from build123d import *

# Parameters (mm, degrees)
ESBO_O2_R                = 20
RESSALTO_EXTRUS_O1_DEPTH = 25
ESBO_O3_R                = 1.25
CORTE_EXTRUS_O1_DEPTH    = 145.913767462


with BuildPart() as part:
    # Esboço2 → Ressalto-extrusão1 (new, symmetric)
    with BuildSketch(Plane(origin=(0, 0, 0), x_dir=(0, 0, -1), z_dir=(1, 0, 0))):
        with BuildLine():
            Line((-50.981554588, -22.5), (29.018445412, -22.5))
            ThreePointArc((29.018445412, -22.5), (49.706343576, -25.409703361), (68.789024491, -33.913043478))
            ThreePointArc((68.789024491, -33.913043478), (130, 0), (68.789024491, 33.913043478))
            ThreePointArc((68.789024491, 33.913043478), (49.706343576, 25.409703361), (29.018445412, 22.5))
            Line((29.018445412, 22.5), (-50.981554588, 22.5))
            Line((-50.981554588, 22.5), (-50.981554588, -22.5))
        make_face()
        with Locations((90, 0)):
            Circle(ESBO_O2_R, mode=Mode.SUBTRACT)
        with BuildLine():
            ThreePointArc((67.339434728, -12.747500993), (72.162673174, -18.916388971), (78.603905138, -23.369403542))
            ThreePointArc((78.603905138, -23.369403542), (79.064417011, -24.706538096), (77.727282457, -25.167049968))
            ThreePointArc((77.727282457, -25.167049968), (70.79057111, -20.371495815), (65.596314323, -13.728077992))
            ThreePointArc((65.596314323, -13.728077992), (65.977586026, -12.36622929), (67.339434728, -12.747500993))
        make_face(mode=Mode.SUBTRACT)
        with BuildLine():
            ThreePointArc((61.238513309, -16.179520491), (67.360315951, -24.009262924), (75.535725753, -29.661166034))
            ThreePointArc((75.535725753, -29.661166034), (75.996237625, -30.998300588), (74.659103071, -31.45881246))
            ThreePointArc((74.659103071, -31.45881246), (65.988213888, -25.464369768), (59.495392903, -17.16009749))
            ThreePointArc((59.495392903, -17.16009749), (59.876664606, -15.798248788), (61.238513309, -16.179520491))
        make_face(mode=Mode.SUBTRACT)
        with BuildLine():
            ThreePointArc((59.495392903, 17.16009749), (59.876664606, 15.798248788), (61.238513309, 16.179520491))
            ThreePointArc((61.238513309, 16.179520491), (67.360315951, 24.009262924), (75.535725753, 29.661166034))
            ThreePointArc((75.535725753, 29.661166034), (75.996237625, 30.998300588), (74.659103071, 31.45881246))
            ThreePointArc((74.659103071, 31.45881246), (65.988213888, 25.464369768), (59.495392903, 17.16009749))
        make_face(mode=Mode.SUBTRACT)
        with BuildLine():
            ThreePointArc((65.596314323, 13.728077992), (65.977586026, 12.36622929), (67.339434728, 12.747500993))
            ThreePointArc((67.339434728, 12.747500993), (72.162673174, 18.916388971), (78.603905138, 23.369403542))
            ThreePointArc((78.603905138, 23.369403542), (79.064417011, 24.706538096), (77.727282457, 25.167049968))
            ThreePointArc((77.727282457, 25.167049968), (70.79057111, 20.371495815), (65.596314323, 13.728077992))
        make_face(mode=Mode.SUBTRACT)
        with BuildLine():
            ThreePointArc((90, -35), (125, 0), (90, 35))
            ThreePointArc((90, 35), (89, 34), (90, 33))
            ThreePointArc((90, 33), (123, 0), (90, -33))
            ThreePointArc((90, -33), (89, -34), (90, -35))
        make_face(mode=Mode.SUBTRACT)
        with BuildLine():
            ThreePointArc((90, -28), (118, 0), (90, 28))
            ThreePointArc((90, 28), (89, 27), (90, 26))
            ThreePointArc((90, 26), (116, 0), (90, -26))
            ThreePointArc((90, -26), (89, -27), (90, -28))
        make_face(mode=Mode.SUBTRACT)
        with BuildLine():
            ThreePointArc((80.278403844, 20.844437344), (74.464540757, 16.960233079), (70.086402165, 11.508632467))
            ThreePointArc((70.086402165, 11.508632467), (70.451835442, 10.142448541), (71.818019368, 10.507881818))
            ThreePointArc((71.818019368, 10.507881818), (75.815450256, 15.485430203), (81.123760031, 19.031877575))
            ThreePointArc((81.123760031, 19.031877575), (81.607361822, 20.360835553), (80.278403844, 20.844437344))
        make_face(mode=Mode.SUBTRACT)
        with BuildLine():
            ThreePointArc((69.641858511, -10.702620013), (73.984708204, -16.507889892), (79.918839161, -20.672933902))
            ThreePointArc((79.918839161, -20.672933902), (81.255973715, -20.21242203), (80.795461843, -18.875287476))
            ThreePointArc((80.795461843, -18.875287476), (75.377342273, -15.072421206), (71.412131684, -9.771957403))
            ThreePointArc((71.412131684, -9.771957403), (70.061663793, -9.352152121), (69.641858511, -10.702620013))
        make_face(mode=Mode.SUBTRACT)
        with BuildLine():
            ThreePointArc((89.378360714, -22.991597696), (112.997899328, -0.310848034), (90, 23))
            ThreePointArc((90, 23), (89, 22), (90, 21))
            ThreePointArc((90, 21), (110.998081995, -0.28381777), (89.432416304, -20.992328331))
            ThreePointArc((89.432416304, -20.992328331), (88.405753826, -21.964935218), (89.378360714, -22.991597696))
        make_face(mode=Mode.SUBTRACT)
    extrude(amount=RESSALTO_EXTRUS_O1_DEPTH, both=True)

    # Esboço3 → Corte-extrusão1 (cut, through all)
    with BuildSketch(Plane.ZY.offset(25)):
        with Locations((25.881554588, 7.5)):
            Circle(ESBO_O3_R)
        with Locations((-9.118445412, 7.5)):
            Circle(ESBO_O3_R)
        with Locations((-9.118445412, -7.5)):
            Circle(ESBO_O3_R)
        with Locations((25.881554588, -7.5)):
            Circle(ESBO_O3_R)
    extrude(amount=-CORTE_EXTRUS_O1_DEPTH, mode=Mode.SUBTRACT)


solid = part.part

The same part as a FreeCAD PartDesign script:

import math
import FreeCAD as App
import Part
import Sketcher

doc = App.newDocument("Part")
body = doc.addObject("PartDesign::Body", "Body")

# Sketch on YZ plane
sketch1 = body.newObject("Sketcher::SketchObject", "Sketch")
sketch1.AttachmentSupport = (doc.getObject("YZ_Plane"), [""])
sketch1.MapMode = "FlatFace"
sketch1.addGeometry([
    Part.LineSegment(App.Vector(-22.5, 51, 0), App.Vector(-22.5, -29, 0)),  # 0
    Part.ArcOfCircle(Part.Circle(App.Vector(-97.5, -29, 0), App.Vector(0, 0, 1), 75), math.radians(-32), math.radians(0)),  # 1
    Part.ArcOfCircle(Part.Circle(App.Vector(0, -90, 0), App.Vector(0, 0, 1), 40), math.radians(148), math.radians(392)),  # 2
    Part.ArcOfCircle(Part.Circle(App.Vector(97.5, -29, 0), App.Vector(0, 0, 1), 75), math.radians(-180), math.radians(-148)),  # 3
    Part.LineSegment(App.Vector(22.5, -29, 0), App.Vector(22.5, 51, 0)),  # 4
    Part.LineSegment(App.Vector(22.5, 51, 0), App.Vector(-22.5, 51, 0)),  # 5
    Part.ArcOfCircle(Part.Circle(App.Vector(-16.7, -60.4, 0), App.Vector(0, 0, 1), 1), math.radians(-61), math.radians(119)),  # 6
    Part.ArcOfCircle(Part.Circle(App.Vector(0, -90, 0), App.Vector(0, 0, 1), 33), math.radians(119), math.radians(154)),  # 7
    Part.ArcOfCircle(Part.Circle(App.Vector(-30.6, -75.1, 0), App.Vector(0, 0, 1), 1), math.radians(154), math.radians(334)),  # 8
    Part.ArcOfCircle(Part.Circle(App.Vector(0, -90, 0), App.Vector(0, 0, 1), 35), math.radians(119), math.radians(154)),  # 9
    Part.ArcOfCircle(Part.Circle(App.Vector(-13.2, -66.5, 0), App.Vector(0, 0, 1), 1), math.radians(-61), math.radians(119)),  # 10
    Part.ArcOfCircle(Part.Circle(App.Vector(0, -90, 0), App.Vector(0, 0, 1), 26), math.radians(119), math.radians(154)),  # 11
    Part.ArcOfCircle(Part.Circle(App.Vector(-24.3, -78.2, 0), App.Vector(0, 0, 1), 1), math.radians(154), math.radians(334)),  # 12
    Part.ArcOfCircle(Part.Circle(App.Vector(0, -90, 0), App.Vector(0, 0, 1), 28), math.radians(119), math.radians(154)),  # 13
    Part.ArcOfCircle(Part.Circle(App.Vector(0, -90, 0), App.Vector(0, 0, 1), 23), math.radians(118), math.radians(154)),  # 14
    Part.ArcOfCircle(Part.Circle(App.Vector(-10.2, -70.5, 0), App.Vector(0, 0, 1), 1), math.radians(-62), math.radians(118)),  # 15
    Part.ArcOfCircle(Part.Circle(App.Vector(0, -90, 0), App.Vector(0, 0, 1), 21), math.radians(118), math.radians(154)),  # 16
    Part.ArcOfCircle(Part.Circle(App.Vector(-19.8, -80.4, 0), App.Vector(0, 0, 1), 1), math.radians(154), math.radians(334)),  # 17
    Part.ArcOfCircle(Part.Circle(App.Vector(0, -90, 0), App.Vector(0, 0, 1), 23), math.radians(178), math.radians(360)),  # 18
    Part.ArcOfCircle(Part.Circle(App.Vector(-22, -89.4, 0), App.Vector(0, 0, 1), 1), math.radians(-2), math.radians(178)),  # 19
    Part.ArcOfCircle(Part.Circle(App.Vector(0, -90, 0), App.Vector(0, 0, 1), 21), math.radians(178), math.radians(360)),  # 20
    Part.ArcOfCircle(Part.Circle(App.Vector(22, -90, 0), App.Vector(0, 0, 1), 1), math.radians(0), math.radians(180)),  # 21
    Part.Circle(App.Vector(0, -90, 0), App.Vector(0, 0, 1), 20),  # 22
    Part.ArcOfCircle(Part.Circle(App.Vector(0, -90, 0), App.Vector(0, 0, 1), 23), math.radians(25), math.radians(60)),  # 23
    Part.ArcOfCircle(Part.Circle(App.Vector(19.9, -80.7, 0), App.Vector(0, 0, 1), 1), math.radians(-155), math.radians(25)),  # 24
    Part.ArcOfCircle(Part.Circle(App.Vector(0, -90, 0), App.Vector(0, 0, 1), 21), math.radians(25), math.radians(60)),  # 25
    Part.ArcOfCircle(Part.Circle(App.Vector(11, -71, 0), App.Vector(0, 0, 1), 1), math.radians(60), math.radians(240)),  # 26
    Part.ArcOfCircle(Part.Circle(App.Vector(13.2, -66.5, 0), App.Vector(0, 0, 1), 1), math.radians(61), math.radians(241)),  # 27
    Part.ArcOfCircle(Part.Circle(App.Vector(0, -90, 0), App.Vector(0, 0, 1), 28), math.radians(26), math.radians(61)),  # 28
    Part.ArcOfCircle(Part.Circle(App.Vector(24.3, -78.2, 0), App.Vector(0, 0, 1), 1), math.radians(-154), math.radians(26)),  # 29
    Part.ArcOfCircle(Part.Circle(App.Vector(0, -90, 0), App.Vector(0, 0, 1), 26), math.radians(26), math.radians(61)),  # 30
    Part.ArcOfCircle(Part.Circle(App.Vector(16.7, -60.4, 0), App.Vector(0, 0, 1), 1), math.radians(61), math.radians(241)),  # 31
    Part.ArcOfCircle(Part.Circle(App.Vector(0, -90, 0), App.Vector(0, 0, 1), 35), math.radians(26), math.radians(61)),  # 32
    Part.ArcOfCircle(Part.Circle(App.Vector(30.6, -75.1, 0), App.Vector(0, 0, 1), 1), math.radians(-154), math.radians(26)),  # 33
    Part.ArcOfCircle(Part.Circle(App.Vector(0, -90, 0), App.Vector(0, 0, 1), 33), math.radians(26), math.radians(61)),  # 34
    Part.ArcOfCircle(Part.Circle(App.Vector(0, -90, 0), App.Vector(0, 0, 1), 28), math.radians(180), math.radians(360)),  # 35
    Part.ArcOfCircle(Part.Circle(App.Vector(-27, -90, 0), App.Vector(0, 0, 1), 1), math.radians(0), math.radians(180)),  # 36
    Part.ArcOfCircle(Part.Circle(App.Vector(0, -90, 0), App.Vector(0, 0, 1), 26), math.radians(180), math.radians(360)),  # 37
    Part.ArcOfCircle(Part.Circle(App.Vector(27, -90, 0), App.Vector(0, 0, 1), 1), math.radians(0), math.radians(180)),  # 38
    Part.ArcOfCircle(Part.Circle(App.Vector(0, -90, 0), App.Vector(0, 0, 1), 35), math.radians(180), math.radians(360)),  # 39
    Part.ArcOfCircle(Part.Circle(App.Vector(-34, -90, 0), App.Vector(0, 0, 1), 1), math.radians(0), math.radians(180)),  # 40
    Part.ArcOfCircle(Part.Circle(App.Vector(0, -90, 0), App.Vector(0, 0, 1), 33), math.radians(180), math.radians(360)),  # 41
    Part.ArcOfCircle(Part.Circle(App.Vector(34, -90, 0), App.Vector(0, 0, 1), 1), math.radians(0), math.radians(180)),  # 42
], False)
sketch1.addConstraint([
    Sketcher.Constraint("Tangent", 0, 2, 1, 2),
    Sketcher.Constraint("Tangent", 1, 1, 2, 1),
    Sketcher.Constraint("Tangent", 2, 2, 3, 2),
    Sketcher.Constraint("Tangent", 3, 1, 4, 1),
    Sketcher.Constraint("Coincident", 4, 2, 5, 1),
    Sketcher.Constraint("Coincident", 5, 2, 0, 1),
    Sketcher.Constraint("Tangent", 6, 1, 7, 1),
    Sketcher.Constraint("Tangent", 7, 2, 8, 2),
    Sketcher.Constraint("Tangent", 8, 1, 9, 2),
    Sketcher.Constraint("Tangent", 9, 1, 6, 2),
    Sketcher.Constraint("Tangent", 10, 1, 11, 1),
    Sketcher.Constraint("Tangent", 11, 2, 12, 2),
    Sketcher.Constraint("Tangent", 12, 1, 13, 2),
    Sketcher.Constraint("Tangent", 13, 1, 10, 2),
    Sketcher.Constraint("Tangent", 14, 1, 15, 2),
    Sketcher.Constraint("Tangent", 15, 1, 16, 1),
    Sketcher.Constraint("Tangent", 16, 2, 17, 2),
    Sketcher.Constraint("Tangent", 17, 1, 14, 2),
    Sketcher.Constraint("Tangent", 18, 1, 19, 2),
    Sketcher.Constraint("Tangent", 19, 1, 20, 1),
    Sketcher.Constraint("Tangent", 20, 2, 21, 2),
    Sketcher.Constraint("Tangent", 21, 1, 18, 2),
    Sketcher.Constraint("Tangent", 23, 1, 24, 2),
    Sketcher.Constraint("Tangent", 24, 1, 25, 1),
    Sketcher.Constraint("Tangent", 25, 2, 26, 2),
    Sketcher.Constraint("Tangent", 26, 1, 23, 2),
    Sketcher.Constraint("Tangent", 27, 1, 28, 2),
    Sketcher.Constraint("Tangent", 28, 1, 29, 2),
    Sketcher.Constraint("Tangent", 29, 1, 30, 1),
    Sketcher.Constraint("Tangent", 30, 2, 27, 2),
    Sketcher.Constraint("Tangent", 31, 1, 32, 2),
    Sketcher.Constraint("Tangent", 32, 1, 33, 2),
    Sketcher.Constraint("Tangent", 33, 1, 34, 1),
    Sketcher.Constraint("Tangent", 34, 2, 31, 2),
    Sketcher.Constraint("Tangent", 35, 1, 36, 2),
    Sketcher.Constraint("Tangent", 36, 1, 37, 1),
    Sketcher.Constraint("Tangent", 37, 2, 38, 2),
    Sketcher.Constraint("Tangent", 38, 1, 35, 2),
    Sketcher.Constraint("Tangent", 39, 1, 40, 2),
    Sketcher.Constraint("Tangent", 40, 1, 41, 1),
    Sketcher.Constraint("Tangent", 41, 2, 42, 2),
    Sketcher.Constraint("Tangent", 42, 1, 39, 2),
    Sketcher.Constraint("Vertical", 0),
    Sketcher.Constraint("Vertical", 4),
    Sketcher.Constraint("Horizontal", 5),
    Sketcher.Constraint("Coincident", 7, 3, 2, 3),
    Sketcher.Constraint("Coincident", 9, 3, 2, 3),
    Sketcher.Constraint("Coincident", 11, 3, 2, 3),
    Sketcher.Constraint("Coincident", 13, 3, 2, 3),
    Sketcher.Constraint("Coincident", 14, 3, 2, 3),
    Sketcher.Constraint("Coincident", 16, 3, 2, 3),
    Sketcher.Constraint("Coincident", 18, 3, 2, 3),
    Sketcher.Constraint("Coincident", 20, 3, 2, 3),
    Sketcher.Constraint("Coincident", 22, 3, 2, 3),
    Sketcher.Constraint("Coincident", 23, 3, 2, 3),
    Sketcher.Constraint("Coincident", 25, 3, 2, 3),
    Sketcher.Constraint("Coincident", 28, 3, 2, 3),
    Sketcher.Constraint("Coincident", 30, 3, 2, 3),
    Sketcher.Constraint("Coincident", 32, 3, 2, 3),
    Sketcher.Constraint("Coincident", 34, 3, 2, 3),
    Sketcher.Constraint("Coincident", 35, 3, 2, 3),
    Sketcher.Constraint("Coincident", 37, 3, 2, 3),
    Sketcher.Constraint("Coincident", 39, 3, 2, 3),
    Sketcher.Constraint("Coincident", 41, 3, 2, 3),
    Sketcher.Constraint("Equal", 1, 3),
    Sketcher.Constraint("Equal", 8, 10),
    Sketcher.Constraint("Equal", 12, 15),
    Sketcher.Constraint("Equal", 14, 18),
    Sketcher.Constraint("Equal", 17, 19),
    Sketcher.Constraint("Equal", 18, 23),
    Sketcher.Constraint("Equal", 21, 24),
    Sketcher.Constraint("Equal", 26, 27),
    Sketcher.Constraint("Equal", 13, 28),
    Sketcher.Constraint("Equal", 29, 31),
    Sketcher.Constraint("Equal", 9, 32),
    Sketcher.Constraint("Equal", 28, 35),
    Sketcher.Constraint("Equal", 33, 36),
    Sketcher.Constraint("Equal", 32, 39),
    Sketcher.Constraint("Equal", 38, 40),
    Sketcher.Constraint("Symmetric", 1, 3, 3, 3, -2),
    Sketcher.Constraint("Horizontal", 20, 3, 21, 3),
    Sketcher.Constraint("Horizontal", 10, 3, 27, 3),
    Sketcher.Constraint("Horizontal", 12, 3, 29, 3),
    Sketcher.Constraint("Horizontal", 6, 3, 31, 3),
    Sketcher.Constraint("Horizontal", 8, 3, 33, 3),
    Sketcher.Constraint("Horizontal", 35, 3, 36, 3),
    Sketcher.Constraint("Horizontal", 37, 3, 38, 3),
    Sketcher.Constraint("Horizontal", 39, 3, 40, 3),
    Sketcher.Constraint("Horizontal", 41, 3, 42, 3),
    Sketcher.Constraint("Diameter", 22, 40.0),
    Sketcher.Constraint("Radius", 1, 75.0),
    Sketcher.Constraint("Radius", 2, 40.0),
    Sketcher.Constraint("Radius", 6, 1.0),
    Sketcher.Constraint("Radius", 7, 33.0),
    Sketcher.Constraint("Radius", 11, 26.0),
    Sketcher.Constraint("Radius", 14, 23.0),
    Sketcher.Constraint("DistanceX", 5, 2, 5, 1, 45.0),
    Sketcher.Constraint("DistanceY", 0, 2, 0, 1, 80.0),
    Sketcher.Constraint("DistanceY", 2, 3, -1, 1, 90.0),
    Sketcher.Constraint("DistanceX", 10, 1, -1, 1, 12.747501),
    Sketcher.Constraint("DistanceX", 6, 3, -1, 1, 16.669809),
    Sketcher.Constraint("DistanceX", 8, 3, -1, 1, 30.559989),
    Sketcher.Constraint("DistanceX", 15, 3, -1, 1, 10.237289),
    Sketcher.Constraint("DistanceX", 17, 3, -1, 1, 19.774111),
    Sketcher.Constraint("DistanceY", 19, 3, -1, 1, 89.405389),
    Sketcher.Constraint("DistanceY", 24, 3, -1, 1, 80.701082),
    Sketcher.Constraint("DistanceY", 26, 3, -1, 1, 70.952211),
    Sketcher.Constraint("DistanceX", 12, 1, -1, 1, 25.16705),
])
pad1 = body.newObject("PartDesign::Pad", "Pad")
pad1.Profile = sketch1
pad1.Length = 50
pad1.Midplane = True

# Sketch on YZ plane
sketch2 = body.newObject("Sketcher::SketchObject", "Sketch001")
sketch2.AttachmentSupport = (doc.getObject("YZ_Plane"), [""])
sketch2.MapMode = "FlatFace"
sketch2.AttachmentOffset = App.Placement(App.Vector(0, 0, -25), App.Rotation())
sketch2.addGeometry([
    Part.Circle(App.Vector(7.5, 25.9, 0), App.Vector(0, 0, 1), 1.2),
    Part.Circle(App.Vector(7.5, -9.1, 0), App.Vector(0, 0, 1), 1.2),
    Part.Circle(App.Vector(-7.5, -9.1, 0), App.Vector(0, 0, 1), 1.2),
    Part.Circle(App.Vector(-7.5, 25.9, 0), App.Vector(0, 0, 1), 1.2),
], False)
sketch2.addConstraint([
    Sketcher.Constraint("Equal", 0, 1),
    Sketcher.Constraint("Equal", 1, 2),
    Sketcher.Constraint("Equal", 2, 3),
    Sketcher.Constraint("Symmetric", 1, 3, 2, 3, -2),
    Sketcher.Constraint("Symmetric", 0, 3, 3, 3, -2),
    Sketcher.Constraint("Vertical", 0, 3, 1, 3),
    Sketcher.Constraint("Diameter", 0, 2.5),
    Sketcher.Constraint("DistanceY", 1, 3, 0, 3, 35.0),
    Sketcher.Constraint("DistanceX", 2, 3, 1, 3, 15.0),
    Sketcher.Constraint("DistanceY", -1, 1, 0, 3, 25.881555),
])
pocket1 = body.newObject("PartDesign::Pocket", "Pocket")
pocket1.Profile = sketch2
pocket1.Type = "ThroughAll"
pocket1.Reversed = True

doc.recompute()
